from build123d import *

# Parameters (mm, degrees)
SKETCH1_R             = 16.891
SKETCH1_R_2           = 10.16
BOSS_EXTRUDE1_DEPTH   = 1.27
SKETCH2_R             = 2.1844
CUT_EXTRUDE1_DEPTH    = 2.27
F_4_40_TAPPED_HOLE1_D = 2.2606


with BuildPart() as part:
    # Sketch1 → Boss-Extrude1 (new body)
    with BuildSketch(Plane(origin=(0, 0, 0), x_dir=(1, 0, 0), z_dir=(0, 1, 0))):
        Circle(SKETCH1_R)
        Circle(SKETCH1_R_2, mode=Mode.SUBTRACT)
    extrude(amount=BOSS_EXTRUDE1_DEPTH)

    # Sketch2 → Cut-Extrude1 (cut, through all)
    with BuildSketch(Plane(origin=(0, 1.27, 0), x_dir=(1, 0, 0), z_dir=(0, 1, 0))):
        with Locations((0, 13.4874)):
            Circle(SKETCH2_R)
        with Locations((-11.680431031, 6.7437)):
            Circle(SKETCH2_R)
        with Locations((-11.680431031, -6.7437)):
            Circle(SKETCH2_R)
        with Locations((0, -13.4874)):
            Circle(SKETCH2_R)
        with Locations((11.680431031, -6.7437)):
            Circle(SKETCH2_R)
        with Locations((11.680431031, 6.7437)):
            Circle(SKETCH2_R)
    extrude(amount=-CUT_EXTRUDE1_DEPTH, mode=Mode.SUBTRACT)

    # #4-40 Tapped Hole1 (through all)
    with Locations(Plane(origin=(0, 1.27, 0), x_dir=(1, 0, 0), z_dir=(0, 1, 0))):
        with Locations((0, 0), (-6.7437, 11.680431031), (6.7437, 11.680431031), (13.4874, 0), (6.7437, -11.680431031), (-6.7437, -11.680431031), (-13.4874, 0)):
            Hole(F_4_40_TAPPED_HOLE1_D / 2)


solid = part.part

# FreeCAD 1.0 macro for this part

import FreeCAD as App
import Part
import Sketcher

V = App.Vector
Q = App.Units.Quantity

doc = App.newDocument("Part")
body = doc.addObject("PartDesign::Body", "Body")

# Sketch on XZ plane
sketch1 = body.newObject("Sketcher::SketchObject", "Sketch")
sketch1.AttachmentSupport = (doc.getObject("XZ_Plane"), [""])
sketch1.MapMode = "FlatFace"
sketch1.addGeometry(Part.Circle(V(0, 0, 0), V(0, 0, 1), 16.891), False)
sketch1.addGeometry(Part.Circle(V(0, 0, 0), V(0, 0, 1), 10.16), False)
sketch1.addConstraint(Sketcher.Constraint("Coincident", 0, 3, -1, 1))
sketch1.addConstraint(Sketcher.Constraint("Coincident", 1, 3, -1, 1))
sketch1.addConstraint(Sketcher.Constraint("Diameter", 1, Q("0.8 in")))
sketch1.addConstraint(Sketcher.Constraint("Diameter", 0, Q("1.33 in")))
pad1 = body.newObject("PartDesign::Pad", "Pad")
pad1.Profile = sketch1
pad1.Length = Q("0.05 in")
pad1.Reversed = True

# Sketch on XZ plane
sketch2 = body.newObject("Sketcher::SketchObject", "Sketch001")
sketch2.AttachmentSupport = (doc.getObject("XZ_Plane"), [""])
sketch2.MapMode = "FlatFace"
sketch2.AttachmentOffset = App.Placement(V(0, 0, -0.05 * 25.4), App.Rotation())
sketch2.addGeometry(Part.Circle(V(0, -13.4874, 0), V(0, 0, 1), 2.1844), False)
sketch2.addGeometry(Part.Circle(V(-11.680431, -6.7437, 0), V(0, 0, 1), 2.1844), False)
sketch2.addGeometry(Part.Circle(V(-11.680431, 6.7437, 0), V(0, 0, 1), 2.1844), False)
sketch2.addGeometry(Part.Circle(V(0, 13.4874, 0), V(0, 0, 1), 2.1844), False)
sketch2.addGeometry(Part.Circle(V(11.680431, 6.7437, 0), V(0, 0, 1), 2.1844), False)
sketch2.addGeometry(Part.Circle(V(11.680431, -6.7437, 0), V(0, 0, 1), 2.1844), False)
sketch2.addConstraint(Sketcher.Constraint("Equal", 0, 1))
sketch2.addConstraint(Sketcher.Constraint("Equal", 1, 2))
sketch2.addConstraint(Sketcher.Constraint("Equal", 2, 3))
sketch2.addConstraint(Sketcher.Constraint("Equal", 3, 4))
sketch2.addConstraint(Sketcher.Constraint("Equal", 4, 5))
sketch2.addConstraint(Sketcher.Constraint("Symmetric", 0, 3, 3, 3, -1, 1))
sketch2.addConstraint(Sketcher.Constraint("Symmetric", 1, 3, 4, 3, -1, 1))
sketch2.addConstraint(Sketcher.Constraint("Symmetric", 2, 3, 5, 3, -1, 1))
sketch2.addConstraint(Sketcher.Constraint("Symmetric", 2, 3, 4, 3, -2))
sketch2.addConstraint(Sketcher.Constraint("PointOnObject", 0, 3, -2))
sketch2.addConstraint(Sketcher.Constraint("Diameter", 0, Q("0.172 in")))
sketch2.addConstraint(Sketcher.Constraint("DistanceY", 0, 3, -1, 1, Q("0.531 in")))
sketch2.addConstraint(Sketcher.Constraint("DistanceY", 1, 3, 2, 3, Q("0.531 in")))
sketch2.addConstraint(Sketcher.Constraint("DistanceX", 1, 3, -1, 1, Q("11.680431 mm")))
pocket1 = body.newObject("PartDesign::Pocket", "Pocket")
pocket1.Profile = sketch2
pocket1.Type = "ThroughAll"
pocket1.Reversed = True

# Sketch on XZ plane
sketch3 = body.newObject("Sketcher::SketchObject", "Sketch002")
sketch3.AttachmentSupport = (doc.getObject("XZ_Plane"), [""])
sketch3.MapMode = "FlatFace"
sketch3.AttachmentOffset = App.Placement(V(0, 0, -0.05 * 25.4), App.Rotation())
sketch3.addGeometry(Part.Circle(V(0, 0, 0), V(0, 0, 1), 1.1303), False)
sketch3.addGeometry(Part.Circle(V(-6.7437, -11.680431, 0), V(0, 0, 1), 1.1303), False)
sketch3.addGeometry(Part.Circle(V(6.7437, -11.680431, 0), V(0, 0, 1), 1.1303), False)
sketch3.addGeometry(Part.Circle(V(13.4874, 0, 0), V(0, 0, 1), 1.1303), False)
sketch3.addGeometry(Part.Circle(V(6.7437, 11.680431, 0), V(0, 0, 1), 1.1303), False)
sketch3.addGeometry(Part.Circle(V(-6.7437, 11.680431, 0), V(0, 0, 1), 1.1303), False)
sketch3.addGeometry(Part.Circle(V(-13.4874, 0, 0), V(0, 0, 1), 1.1303), False)
sketch3.addConstraint(Sketcher.Constraint("Coincident", 0, 3, -1, 1))
sketch3.addConstraint(Sketcher.Constraint("Equal", 0, 1))
sketch3.addConstraint(Sketcher.Constraint("Equal", 1, 2))
sketch3.addConstraint(Sketcher.Constraint("Equal", 2, 3))
sketch3.addConstraint(Sketcher.Constraint("Equal", 3, 4))
sketch3.addConstraint(Sketcher.Constraint("Equal", 4, 5))
sketch3.addConstraint(Sketcher.Constraint("Equal", 5, 6))
sketch3.addConstraint(Sketcher.Constraint("Symmetric", 1, 3, 4, 3, -1, 1))
sketch3.addConstraint(Sketcher.Constraint("Symmetric", 2, 3, 5, 3, -1, 1))
sketch3.addConstraint(Sketcher.Constraint("Symmetric", 3, 3, 6, 3, -1, 1))
sketch3.addConstraint(Sketcher.Constraint("Symmetric", 1, 3, 2, 3, -2))
sketch3.addConstraint(Sketcher.Constraint("PointOnObject", 3, 3, -1))
sketch3.addConstraint(Sketcher.Constraint("Diameter", 0, Q("0.089 in")))
sketch3.addConstraint(Sketcher.Constraint("DistanceX", -1, 1, 3, 3, Q("0.531 in")))
sketch3.addConstraint(Sketcher.Constraint("DistanceX", 1, 3, 2, 3, Q("0.531 in")))
sketch3.addConstraint(Sketcher.Constraint("DistanceY", 1, 3, -1, 1, Q("11.680431 mm")))
doc.recompute()
hole = body.newObject("PartDesign::Hole", "Hole")
hole.Profile = sketch3
hole.ThreadType = "None"
hole.Diameter = Q("0.089 in")
hole.DepthType = "ThroughAll"
hole.Reversed = True

doc.recompute()
